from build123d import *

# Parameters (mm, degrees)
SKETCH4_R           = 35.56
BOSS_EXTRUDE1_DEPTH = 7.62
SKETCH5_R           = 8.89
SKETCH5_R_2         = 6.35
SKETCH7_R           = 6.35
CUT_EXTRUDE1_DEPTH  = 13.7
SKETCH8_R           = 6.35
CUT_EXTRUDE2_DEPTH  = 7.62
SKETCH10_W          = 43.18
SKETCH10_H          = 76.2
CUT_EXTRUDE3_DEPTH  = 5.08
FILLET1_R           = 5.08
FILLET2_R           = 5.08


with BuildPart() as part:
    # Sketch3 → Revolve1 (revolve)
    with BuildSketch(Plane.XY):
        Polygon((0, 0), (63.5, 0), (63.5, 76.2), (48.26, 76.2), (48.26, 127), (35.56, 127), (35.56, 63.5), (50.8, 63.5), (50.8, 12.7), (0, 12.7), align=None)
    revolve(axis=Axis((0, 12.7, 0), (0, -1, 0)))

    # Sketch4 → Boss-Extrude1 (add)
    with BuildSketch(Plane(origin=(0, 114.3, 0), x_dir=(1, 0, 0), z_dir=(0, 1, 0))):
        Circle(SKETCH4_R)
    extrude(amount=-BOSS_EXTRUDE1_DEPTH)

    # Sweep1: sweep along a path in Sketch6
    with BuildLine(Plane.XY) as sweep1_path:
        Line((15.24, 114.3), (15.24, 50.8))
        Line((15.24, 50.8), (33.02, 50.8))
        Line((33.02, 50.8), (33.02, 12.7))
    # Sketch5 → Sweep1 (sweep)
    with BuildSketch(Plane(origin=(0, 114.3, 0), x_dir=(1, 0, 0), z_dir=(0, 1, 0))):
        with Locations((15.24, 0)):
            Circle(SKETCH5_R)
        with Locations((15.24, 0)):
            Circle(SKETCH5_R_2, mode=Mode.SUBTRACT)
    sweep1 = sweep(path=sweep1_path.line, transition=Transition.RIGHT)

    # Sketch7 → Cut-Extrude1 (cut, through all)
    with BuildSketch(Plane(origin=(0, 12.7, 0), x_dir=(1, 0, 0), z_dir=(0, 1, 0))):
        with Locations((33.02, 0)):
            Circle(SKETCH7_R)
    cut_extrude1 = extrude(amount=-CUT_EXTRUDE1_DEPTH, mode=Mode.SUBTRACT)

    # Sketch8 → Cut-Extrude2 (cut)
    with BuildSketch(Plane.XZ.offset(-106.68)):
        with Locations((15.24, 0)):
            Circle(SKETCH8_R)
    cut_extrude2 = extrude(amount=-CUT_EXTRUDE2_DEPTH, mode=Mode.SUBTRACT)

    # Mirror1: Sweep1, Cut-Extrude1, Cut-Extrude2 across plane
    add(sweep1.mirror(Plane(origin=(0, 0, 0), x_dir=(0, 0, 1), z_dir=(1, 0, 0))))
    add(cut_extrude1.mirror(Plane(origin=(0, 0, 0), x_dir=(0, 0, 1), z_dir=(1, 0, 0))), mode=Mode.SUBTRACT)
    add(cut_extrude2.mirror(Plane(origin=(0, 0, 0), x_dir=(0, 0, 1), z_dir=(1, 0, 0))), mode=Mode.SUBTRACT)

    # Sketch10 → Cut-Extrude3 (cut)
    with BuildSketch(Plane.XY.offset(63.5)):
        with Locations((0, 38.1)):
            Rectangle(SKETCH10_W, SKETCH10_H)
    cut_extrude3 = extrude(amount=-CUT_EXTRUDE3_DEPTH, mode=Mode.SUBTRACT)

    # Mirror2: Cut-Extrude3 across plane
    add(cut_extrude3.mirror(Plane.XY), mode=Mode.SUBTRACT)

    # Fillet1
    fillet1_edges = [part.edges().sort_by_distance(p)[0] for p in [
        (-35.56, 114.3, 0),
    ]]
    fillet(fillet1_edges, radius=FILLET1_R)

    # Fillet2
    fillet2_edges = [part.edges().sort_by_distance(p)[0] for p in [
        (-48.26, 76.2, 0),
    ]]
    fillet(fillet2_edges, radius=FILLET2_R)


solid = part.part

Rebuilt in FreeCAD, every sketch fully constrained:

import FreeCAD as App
import Part
import Sketcher
Q = App.Units.Quantity


def edges_at(feature, points):
    """Names of the edges that pass closest to the given points."""
    edges = feature.Shape.Edges
    near = lambda p: min(range(len(edges)), key=lambda i: edges[i].distToShape(Part.Vertex(*p))[0])
    return sorted({f"Edge{near(p) + 1}" for p in points})


def add_polygon(sketch, points):
    """Adds a closed chain of lines whose ends are joined by coincident constraints."""
    first, n = sketch.GeometryCount, len(points)
    for a, b in zip(points, points[1:] + points[:1]):
        sketch.addGeometry(Part.LineSegment(App.Vector(*a, 0), App.Vector(*b, 0)), False)
    for i in range(n):
        sketch.addConstraint(Sketcher.Constraint("Coincident", first + i, 2, first + (i + 1) % n, 1))

doc = App.newDocument("Part")
body = doc.addObject("PartDesign::Body", "Body")

sketch1 = body.newObject("Sketcher::SketchObject", "Sketch")
sketch1.AttachmentSupport = (doc.getObject("XY_Plane"), [""])
sketch1.MapMode = "FlatFace"
add_polygon(sketch1, [(0, 0), (64, 0), (64, 76), (48, 76), (48, 127), (36, 127), (36, 64), (51, 64), (51, 13), (0, 13)])
sketch1.addConstraint([
    Sketcher.Constraint("Horizontal", 0),
    Sketcher.Constraint("Vertical", 1),
    Sketcher.Constraint("Horizontal", 2),
    Sketcher.Constraint("Vertical", 3),
    Sketcher.Constraint("Horizontal", 4),
    Sketcher.Constraint("Vertical", 5),
    Sketcher.Constraint("Horizontal", 6),
    Sketcher.Constraint("Vertical", 7),
    Sketcher.Constraint("Horizontal", 8),
    Sketcher.Constraint("Vertical", 9),
    Sketcher.Constraint("Coincident", 9, 2, -1, 1),
    Sketcher.Constraint("Equal", 2, 6),
    Sketcher.Constraint("Equal", 8, 3),
    Sketcher.Constraint("Equal", 0, 5),
    Sketcher.Constraint("Equal", 3, 7),
    Sketcher.Constraint("Equal", 4, 9),
    Sketcher.Constraint("DistanceX", 8, 2, 8, 1, Q("2 in")),
    Sketcher.Constraint("DistanceY", 1, 1, 1, 2, Q("3 in")),
    Sketcher.Constraint("DistanceX", 2, 2, 2, 1, Q("0.6 in")),
])
revolution = body.newObject("PartDesign::Revolution", "Revolution")
revolution.Profile = sketch1
revolution.ReferenceAxis = (sketch1, ["V_Axis"])
revolution.Angle = 360

sketch2 = body.newObject("Sketcher::SketchObject", "Sketch001")
sketch2.AttachmentSupport = (doc.getObject("XZ_Plane"), [""])
sketch2.MapMode = "FlatFace"
sketch2.AttachmentOffset = App.Placement(App.Vector(0, 0, -4.5 * 25.4), App.Rotation())
sketch2.addGeometry(Part.Circle(App.Vector(0, 0, 0), App.Vector(0, 0, 1), 36), False)
sketch2.addConstraint([
    Sketcher.Constraint("Coincident", 0, 3, -1, 1),
    Sketcher.Constraint("Diameter", 0, Q("2.8 in")),
])
pad1 = body.newObject("PartDesign::Pad", "Pad")
pad1.Profile = sketch2
pad1.Length = Q("0.3 in")

sketch3 = body.newObject("Sketcher::SketchObject", "Sketch002")
sketch3.AttachmentSupport = (doc.getObject("XZ_Plane"), [""])
sketch3.MapMode = "FlatFace"
sketch3.AttachmentOffset = App.Placement(App.Vector(0, 0, -4.5 * 25.4), App.Rotation())
sketch3.addGeometry([
    Part.Circle(App.Vector(15, 0, 0), App.Vector(0, 0, 1), 9),
    Part.Circle(App.Vector(15, 0, 0), App.Vector(0, 0, 1), 6),
], False)
sketch3.addConstraint([
    Sketcher.Constraint("Coincident", 1, 3, 0, 3),
    Sketcher.Constraint("PointOnObject", 0, 3, -1),
    Sketcher.Constraint("Diameter", 0, Q("0.7 in")),
    Sketcher.Constraint("Diameter", 1, Q("0.5 in")),
    Sketcher.Constraint("DistanceX", -1, 1, 0, 3, Q("0.6 in")),
])

sketch4 = body.newObject("Sketcher::SketchObject", "Sketch003")
sketch4.AttachmentSupport = (doc.getObject("XY_Plane"), [""])
sketch4.MapMode = "FlatFace"
sketch4.addGeometry([
    Part.LineSegment(App.Vector(15, 114, 0), App.Vector(15, 51, 0)),
    Part.LineSegment(App.Vector(15, 51, 0), App.Vector(33, 51, 0)),
    Part.LineSegment(App.Vector(33, 51, 0), App.Vector(33, 13, 0)),
], False)
sketch4.addConstraint([
    Sketcher.Constraint("Coincident", 0, 2, 1, 1),
    Sketcher.Constraint("Coincident", 1, 2, 2, 1),
    Sketcher.Constraint("Vertical", 0),
    Sketcher.Constraint("Horizontal", 1),
    Sketcher.Constraint("Vertical", 2),
    Sketcher.Constraint("DistanceX", 1, 1, 1, 2, Q("0.7 in")),
    Sketcher.Constraint("DistanceY", 0, 2, 0, 1, Q("2.5 in")),
    Sketcher.Constraint("DistanceY", 2, 2, 2, 1, Q("1.5 in")),
    Sketcher.Constraint("DistanceY", -1, 1, 0, 2, Q("2 in")),
    Sketcher.Constraint("DistanceX", -1, 1, 0, 1, Q("0.6 in")),
])
doc.recompute()

additivepipe = body.newObject("PartDesign::AdditivePipe", "AdditivePipe")
additivepipe.Profile = sketch3
additivepipe.Spine = (sketch4, ["Edge1", "Edge2", "Edge3"])
additivepipe.Transition = "Right corner"

sketch5 = body.newObject("Sketcher::SketchObject", "Sketch004")
sketch5.AttachmentSupport = (doc.getObject("XZ_Plane"), [""])
sketch5.MapMode = "FlatFace"
sketch5.AttachmentOffset = App.Placement(App.Vector(0, 0, -0.5 * 25.4), App.Rotation())
sketch5.addGeometry(Part.Circle(App.Vector(33, 0, 0), App.Vector(0, 0, 1), 6), False)
sketch5.addConstraint([
    Sketcher.Constraint("PointOnObject", 0, 3, -1),
    Sketcher.Constraint("Diameter", 0, Q("0.5 in")),
    Sketcher.Constraint("DistanceX", -1, 1, 0, 3, Q("1.3 in")),
])
pocket1 = body.newObject("PartDesign::Pocket", "Pocket")
pocket1.Profile = sketch5
pocket1.Type = "ThroughAll"
pocket1.Reversed = True

sketch6 = body.newObject("Sketcher::SketchObject", "Sketch005")
sketch6.AttachmentSupport = (doc.getObject("XZ_Plane"), [""])
sketch6.MapMode = "FlatFace"
sketch6.AttachmentOffset = App.Placement(App.Vector(0, 0, -4.2 * 25.4), App.Rotation())
sketch6.addGeometry(Part.Circle(App.Vector(15, 0, 0), App.Vector(0, 0, 1), 6), False)
sketch6.addConstraint([
    Sketcher.Constraint("PointOnObject", 0, 3, -1),
    Sketcher.Constraint("Diameter", 0, Q("0.5 in")),
    Sketcher.Constraint("DistanceX", -1, 1, 0, 3, Q("0.6 in")),
])
pocket2 = body.newObject("PartDesign::Pocket", "Pocket001")
pocket2.Profile = sketch6
pocket2.Length = Q("0.3 in")
doc.recompute()

mirrored = body.newObject("PartDesign::Mirrored", "Mirrored")
mirrored.Originals = [additivepipe, pocket1, pocket2]
mirrored.MirrorPlane = (doc.getObject("YZ_Plane"), [""])
body.Tip = mirrored

sketch7 = body.newObject("Sketcher::SketchObject", "Sketch006")
sketch7.AttachmentSupport = (doc.getObject("XY_Plane"), [""])
sketch7.MapMode = "FlatFace"
sketch7.AttachmentOffset = App.Placement(App.Vector(0, 0, 2.5 * 25.4), App.Rotation())
add_polygon(sketch7, [(-22, 76), (-22, 0), (22, 0), (22, 76)])
sketch7.addConstraint([
    Sketcher.Constraint("Vertical", 0),
    Sketcher.Constraint("Horizontal", 1),
    Sketcher.Constraint("Vertical", 2),
    Sketcher.Constraint("Horizontal", 3),
    Sketcher.Constraint("Symmetric", 0, 2, 1, 2, -1, 1),
    Sketcher.Constraint("DistanceY", 0, 2, 0, 1, Q("3 in")),
    Sketcher.Constraint("DistanceX", 1, 1, 1, 2, Q("1.7 in")),
])
pocket3 = body.newObject("PartDesign::Pocket", "Pocket002")
pocket3.Profile = sketch7
pocket3.Length = Q("0.2 in")
doc.recompute()

mirrored2 = body.newObject("PartDesign::Mirrored", "Mirrored001")
mirrored2.Originals = [pocket3]
mirrored2.MirrorPlane = (doc.getObject("XY_Plane"), [""])
body.Tip = mirrored2
doc.recompute()

fillet = body.newObject("PartDesign::Fillet", "Fillet")
fillet.Base = (mirrored2, edges_at(mirrored2, [(-35.56, 114.3, 0)]))
fillet.Radius = Q("0.2 in")
doc.recompute()

fillet2 = body.newObject("PartDesign::Fillet", "Fillet001")
fillet2.Base = (fillet, edges_at(fillet, [(-48.26, 76.2, 0)]))
fillet2.Radius = Q("0.2 in")

doc.recompute()
